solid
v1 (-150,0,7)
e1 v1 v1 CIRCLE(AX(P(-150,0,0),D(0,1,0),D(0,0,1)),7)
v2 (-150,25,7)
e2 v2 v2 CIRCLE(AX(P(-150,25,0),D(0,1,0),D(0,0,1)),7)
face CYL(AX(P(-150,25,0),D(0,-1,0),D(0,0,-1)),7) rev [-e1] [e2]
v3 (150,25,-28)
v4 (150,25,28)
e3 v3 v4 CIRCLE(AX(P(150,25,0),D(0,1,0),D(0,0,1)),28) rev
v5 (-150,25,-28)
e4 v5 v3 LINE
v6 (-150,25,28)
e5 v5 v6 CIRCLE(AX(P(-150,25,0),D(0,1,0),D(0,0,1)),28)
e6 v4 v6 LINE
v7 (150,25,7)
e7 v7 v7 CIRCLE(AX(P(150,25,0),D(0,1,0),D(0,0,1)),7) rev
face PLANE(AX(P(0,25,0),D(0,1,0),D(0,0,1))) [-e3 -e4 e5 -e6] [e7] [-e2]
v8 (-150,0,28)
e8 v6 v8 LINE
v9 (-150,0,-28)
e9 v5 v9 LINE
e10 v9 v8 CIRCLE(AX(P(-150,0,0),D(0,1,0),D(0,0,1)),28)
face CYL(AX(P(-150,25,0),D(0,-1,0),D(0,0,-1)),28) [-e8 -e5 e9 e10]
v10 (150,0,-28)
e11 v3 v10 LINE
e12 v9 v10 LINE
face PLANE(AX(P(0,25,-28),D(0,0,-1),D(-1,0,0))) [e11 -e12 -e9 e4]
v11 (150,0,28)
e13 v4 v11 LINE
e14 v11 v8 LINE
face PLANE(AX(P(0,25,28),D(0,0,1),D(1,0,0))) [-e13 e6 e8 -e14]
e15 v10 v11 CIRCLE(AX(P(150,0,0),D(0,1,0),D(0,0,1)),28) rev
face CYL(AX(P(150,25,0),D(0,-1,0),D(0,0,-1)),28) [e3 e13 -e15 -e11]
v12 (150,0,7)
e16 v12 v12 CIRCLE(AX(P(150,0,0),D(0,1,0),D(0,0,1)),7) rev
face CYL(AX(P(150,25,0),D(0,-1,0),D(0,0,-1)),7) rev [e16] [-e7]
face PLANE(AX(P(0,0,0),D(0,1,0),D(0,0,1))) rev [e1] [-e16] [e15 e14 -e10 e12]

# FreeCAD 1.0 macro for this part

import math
import FreeCAD as App
import Part
import Sketcher

V = App.Vector
Q = App.Units.Quantity

doc = App.newDocument("Part")
params = doc.addObject("Spreadsheet::Sheet", "Params")
for row, (alias, value) in enumerate([
    ("sketch1_diameter", "14 mm"),
    ("sketch1_radius", "28 mm"),
    ("sketch1_width", "300 mm"),
    ("pad1_length", "25 mm"),
], start=1):
    params.set(f"A{row}", alias)
    params.set(f"B{row}", "=" + value)
    params.setAlias(f"B{row}", alias)

body = doc.addObject("PartDesign::Body", "Body")

# Sketch on XZ plane
sketch1 = doc.addObject("Sketcher::SketchObject", "Sketch")
body.addObject(sketch1)
sketch1.AttachmentSupport = (doc.XZ_Plane, [""])
sketch1.MapMode = "FlatFace"
sketch1.addGeometry([
    Part.LineSegment(V(150, -28, 0), V(-150, -28, 0)),  # 0
    Part.ArcOfCircle(Part.Circle(V(-150, 0, 0), V(0, 0, 1), 28), math.radians(90), math.radians(270)),  # 1
    Part.LineSegment(V(-150, 28, 0), V(150, 28, 0)),  # 2
    Part.ArcOfCircle(Part.Circle(V(150, 0, 0), V(0, 0, 1), 28), math.radians(-90), math.radians(90)),  # 3
    Part.Circle(V(-150, 0, 0), V(0, 0, 1), 7),  # 4
    Part.Circle(V(150, 0, 0), V(0, 0, 1), 7),  # 5
], False)
sketch1.addConstraint([
    Sketcher.Constraint("Tangent", 0, 2, 1, 2),
    Sketcher.Constraint("Tangent", 1, 1, 2, 1),
    Sketcher.Constraint("Tangent", 2, 2, 3, 2),
    Sketcher.Constraint("Tangent", 3, 1, 0, 1),
    Sketcher.Constraint("Horizontal", 0),
    Sketcher.Constraint("Horizontal", 2),
    Sketcher.Constraint("Coincident", 4, 3, 1, 3),
    Sketcher.Constraint("Coincident", 5, 3, 3, 3),
    Sketcher.Constraint("Equal", 4, 5),
    Sketcher.Constraint("Symmetric", 1, 3, 3, 3, -1, 1),
    Sketcher.Constraint("Diameter", 4, Q("14 mm")),
    Sketcher.Constraint("Radius", 1, Q("28 mm")),
    Sketcher.Constraint("DistanceX", 0, 2, 0, 1, Q("300 mm")),
])
sketch1.setExpression("Constraints[10]", "Params.sketch1_diameter")
sketch1.setExpression("Constraints[11]", "Params.sketch1_radius")
sketch1.setExpression("Constraints[12]", "Params.sketch1_width")
pad1 = doc.addObject("PartDesign::Pad", "Pad")
body.addObject(pad1)
pad1.Profile = sketch1
pad1.setExpression("Length", "Params.pad1_length")
pad1.Reversed = True

doc.recompute()
